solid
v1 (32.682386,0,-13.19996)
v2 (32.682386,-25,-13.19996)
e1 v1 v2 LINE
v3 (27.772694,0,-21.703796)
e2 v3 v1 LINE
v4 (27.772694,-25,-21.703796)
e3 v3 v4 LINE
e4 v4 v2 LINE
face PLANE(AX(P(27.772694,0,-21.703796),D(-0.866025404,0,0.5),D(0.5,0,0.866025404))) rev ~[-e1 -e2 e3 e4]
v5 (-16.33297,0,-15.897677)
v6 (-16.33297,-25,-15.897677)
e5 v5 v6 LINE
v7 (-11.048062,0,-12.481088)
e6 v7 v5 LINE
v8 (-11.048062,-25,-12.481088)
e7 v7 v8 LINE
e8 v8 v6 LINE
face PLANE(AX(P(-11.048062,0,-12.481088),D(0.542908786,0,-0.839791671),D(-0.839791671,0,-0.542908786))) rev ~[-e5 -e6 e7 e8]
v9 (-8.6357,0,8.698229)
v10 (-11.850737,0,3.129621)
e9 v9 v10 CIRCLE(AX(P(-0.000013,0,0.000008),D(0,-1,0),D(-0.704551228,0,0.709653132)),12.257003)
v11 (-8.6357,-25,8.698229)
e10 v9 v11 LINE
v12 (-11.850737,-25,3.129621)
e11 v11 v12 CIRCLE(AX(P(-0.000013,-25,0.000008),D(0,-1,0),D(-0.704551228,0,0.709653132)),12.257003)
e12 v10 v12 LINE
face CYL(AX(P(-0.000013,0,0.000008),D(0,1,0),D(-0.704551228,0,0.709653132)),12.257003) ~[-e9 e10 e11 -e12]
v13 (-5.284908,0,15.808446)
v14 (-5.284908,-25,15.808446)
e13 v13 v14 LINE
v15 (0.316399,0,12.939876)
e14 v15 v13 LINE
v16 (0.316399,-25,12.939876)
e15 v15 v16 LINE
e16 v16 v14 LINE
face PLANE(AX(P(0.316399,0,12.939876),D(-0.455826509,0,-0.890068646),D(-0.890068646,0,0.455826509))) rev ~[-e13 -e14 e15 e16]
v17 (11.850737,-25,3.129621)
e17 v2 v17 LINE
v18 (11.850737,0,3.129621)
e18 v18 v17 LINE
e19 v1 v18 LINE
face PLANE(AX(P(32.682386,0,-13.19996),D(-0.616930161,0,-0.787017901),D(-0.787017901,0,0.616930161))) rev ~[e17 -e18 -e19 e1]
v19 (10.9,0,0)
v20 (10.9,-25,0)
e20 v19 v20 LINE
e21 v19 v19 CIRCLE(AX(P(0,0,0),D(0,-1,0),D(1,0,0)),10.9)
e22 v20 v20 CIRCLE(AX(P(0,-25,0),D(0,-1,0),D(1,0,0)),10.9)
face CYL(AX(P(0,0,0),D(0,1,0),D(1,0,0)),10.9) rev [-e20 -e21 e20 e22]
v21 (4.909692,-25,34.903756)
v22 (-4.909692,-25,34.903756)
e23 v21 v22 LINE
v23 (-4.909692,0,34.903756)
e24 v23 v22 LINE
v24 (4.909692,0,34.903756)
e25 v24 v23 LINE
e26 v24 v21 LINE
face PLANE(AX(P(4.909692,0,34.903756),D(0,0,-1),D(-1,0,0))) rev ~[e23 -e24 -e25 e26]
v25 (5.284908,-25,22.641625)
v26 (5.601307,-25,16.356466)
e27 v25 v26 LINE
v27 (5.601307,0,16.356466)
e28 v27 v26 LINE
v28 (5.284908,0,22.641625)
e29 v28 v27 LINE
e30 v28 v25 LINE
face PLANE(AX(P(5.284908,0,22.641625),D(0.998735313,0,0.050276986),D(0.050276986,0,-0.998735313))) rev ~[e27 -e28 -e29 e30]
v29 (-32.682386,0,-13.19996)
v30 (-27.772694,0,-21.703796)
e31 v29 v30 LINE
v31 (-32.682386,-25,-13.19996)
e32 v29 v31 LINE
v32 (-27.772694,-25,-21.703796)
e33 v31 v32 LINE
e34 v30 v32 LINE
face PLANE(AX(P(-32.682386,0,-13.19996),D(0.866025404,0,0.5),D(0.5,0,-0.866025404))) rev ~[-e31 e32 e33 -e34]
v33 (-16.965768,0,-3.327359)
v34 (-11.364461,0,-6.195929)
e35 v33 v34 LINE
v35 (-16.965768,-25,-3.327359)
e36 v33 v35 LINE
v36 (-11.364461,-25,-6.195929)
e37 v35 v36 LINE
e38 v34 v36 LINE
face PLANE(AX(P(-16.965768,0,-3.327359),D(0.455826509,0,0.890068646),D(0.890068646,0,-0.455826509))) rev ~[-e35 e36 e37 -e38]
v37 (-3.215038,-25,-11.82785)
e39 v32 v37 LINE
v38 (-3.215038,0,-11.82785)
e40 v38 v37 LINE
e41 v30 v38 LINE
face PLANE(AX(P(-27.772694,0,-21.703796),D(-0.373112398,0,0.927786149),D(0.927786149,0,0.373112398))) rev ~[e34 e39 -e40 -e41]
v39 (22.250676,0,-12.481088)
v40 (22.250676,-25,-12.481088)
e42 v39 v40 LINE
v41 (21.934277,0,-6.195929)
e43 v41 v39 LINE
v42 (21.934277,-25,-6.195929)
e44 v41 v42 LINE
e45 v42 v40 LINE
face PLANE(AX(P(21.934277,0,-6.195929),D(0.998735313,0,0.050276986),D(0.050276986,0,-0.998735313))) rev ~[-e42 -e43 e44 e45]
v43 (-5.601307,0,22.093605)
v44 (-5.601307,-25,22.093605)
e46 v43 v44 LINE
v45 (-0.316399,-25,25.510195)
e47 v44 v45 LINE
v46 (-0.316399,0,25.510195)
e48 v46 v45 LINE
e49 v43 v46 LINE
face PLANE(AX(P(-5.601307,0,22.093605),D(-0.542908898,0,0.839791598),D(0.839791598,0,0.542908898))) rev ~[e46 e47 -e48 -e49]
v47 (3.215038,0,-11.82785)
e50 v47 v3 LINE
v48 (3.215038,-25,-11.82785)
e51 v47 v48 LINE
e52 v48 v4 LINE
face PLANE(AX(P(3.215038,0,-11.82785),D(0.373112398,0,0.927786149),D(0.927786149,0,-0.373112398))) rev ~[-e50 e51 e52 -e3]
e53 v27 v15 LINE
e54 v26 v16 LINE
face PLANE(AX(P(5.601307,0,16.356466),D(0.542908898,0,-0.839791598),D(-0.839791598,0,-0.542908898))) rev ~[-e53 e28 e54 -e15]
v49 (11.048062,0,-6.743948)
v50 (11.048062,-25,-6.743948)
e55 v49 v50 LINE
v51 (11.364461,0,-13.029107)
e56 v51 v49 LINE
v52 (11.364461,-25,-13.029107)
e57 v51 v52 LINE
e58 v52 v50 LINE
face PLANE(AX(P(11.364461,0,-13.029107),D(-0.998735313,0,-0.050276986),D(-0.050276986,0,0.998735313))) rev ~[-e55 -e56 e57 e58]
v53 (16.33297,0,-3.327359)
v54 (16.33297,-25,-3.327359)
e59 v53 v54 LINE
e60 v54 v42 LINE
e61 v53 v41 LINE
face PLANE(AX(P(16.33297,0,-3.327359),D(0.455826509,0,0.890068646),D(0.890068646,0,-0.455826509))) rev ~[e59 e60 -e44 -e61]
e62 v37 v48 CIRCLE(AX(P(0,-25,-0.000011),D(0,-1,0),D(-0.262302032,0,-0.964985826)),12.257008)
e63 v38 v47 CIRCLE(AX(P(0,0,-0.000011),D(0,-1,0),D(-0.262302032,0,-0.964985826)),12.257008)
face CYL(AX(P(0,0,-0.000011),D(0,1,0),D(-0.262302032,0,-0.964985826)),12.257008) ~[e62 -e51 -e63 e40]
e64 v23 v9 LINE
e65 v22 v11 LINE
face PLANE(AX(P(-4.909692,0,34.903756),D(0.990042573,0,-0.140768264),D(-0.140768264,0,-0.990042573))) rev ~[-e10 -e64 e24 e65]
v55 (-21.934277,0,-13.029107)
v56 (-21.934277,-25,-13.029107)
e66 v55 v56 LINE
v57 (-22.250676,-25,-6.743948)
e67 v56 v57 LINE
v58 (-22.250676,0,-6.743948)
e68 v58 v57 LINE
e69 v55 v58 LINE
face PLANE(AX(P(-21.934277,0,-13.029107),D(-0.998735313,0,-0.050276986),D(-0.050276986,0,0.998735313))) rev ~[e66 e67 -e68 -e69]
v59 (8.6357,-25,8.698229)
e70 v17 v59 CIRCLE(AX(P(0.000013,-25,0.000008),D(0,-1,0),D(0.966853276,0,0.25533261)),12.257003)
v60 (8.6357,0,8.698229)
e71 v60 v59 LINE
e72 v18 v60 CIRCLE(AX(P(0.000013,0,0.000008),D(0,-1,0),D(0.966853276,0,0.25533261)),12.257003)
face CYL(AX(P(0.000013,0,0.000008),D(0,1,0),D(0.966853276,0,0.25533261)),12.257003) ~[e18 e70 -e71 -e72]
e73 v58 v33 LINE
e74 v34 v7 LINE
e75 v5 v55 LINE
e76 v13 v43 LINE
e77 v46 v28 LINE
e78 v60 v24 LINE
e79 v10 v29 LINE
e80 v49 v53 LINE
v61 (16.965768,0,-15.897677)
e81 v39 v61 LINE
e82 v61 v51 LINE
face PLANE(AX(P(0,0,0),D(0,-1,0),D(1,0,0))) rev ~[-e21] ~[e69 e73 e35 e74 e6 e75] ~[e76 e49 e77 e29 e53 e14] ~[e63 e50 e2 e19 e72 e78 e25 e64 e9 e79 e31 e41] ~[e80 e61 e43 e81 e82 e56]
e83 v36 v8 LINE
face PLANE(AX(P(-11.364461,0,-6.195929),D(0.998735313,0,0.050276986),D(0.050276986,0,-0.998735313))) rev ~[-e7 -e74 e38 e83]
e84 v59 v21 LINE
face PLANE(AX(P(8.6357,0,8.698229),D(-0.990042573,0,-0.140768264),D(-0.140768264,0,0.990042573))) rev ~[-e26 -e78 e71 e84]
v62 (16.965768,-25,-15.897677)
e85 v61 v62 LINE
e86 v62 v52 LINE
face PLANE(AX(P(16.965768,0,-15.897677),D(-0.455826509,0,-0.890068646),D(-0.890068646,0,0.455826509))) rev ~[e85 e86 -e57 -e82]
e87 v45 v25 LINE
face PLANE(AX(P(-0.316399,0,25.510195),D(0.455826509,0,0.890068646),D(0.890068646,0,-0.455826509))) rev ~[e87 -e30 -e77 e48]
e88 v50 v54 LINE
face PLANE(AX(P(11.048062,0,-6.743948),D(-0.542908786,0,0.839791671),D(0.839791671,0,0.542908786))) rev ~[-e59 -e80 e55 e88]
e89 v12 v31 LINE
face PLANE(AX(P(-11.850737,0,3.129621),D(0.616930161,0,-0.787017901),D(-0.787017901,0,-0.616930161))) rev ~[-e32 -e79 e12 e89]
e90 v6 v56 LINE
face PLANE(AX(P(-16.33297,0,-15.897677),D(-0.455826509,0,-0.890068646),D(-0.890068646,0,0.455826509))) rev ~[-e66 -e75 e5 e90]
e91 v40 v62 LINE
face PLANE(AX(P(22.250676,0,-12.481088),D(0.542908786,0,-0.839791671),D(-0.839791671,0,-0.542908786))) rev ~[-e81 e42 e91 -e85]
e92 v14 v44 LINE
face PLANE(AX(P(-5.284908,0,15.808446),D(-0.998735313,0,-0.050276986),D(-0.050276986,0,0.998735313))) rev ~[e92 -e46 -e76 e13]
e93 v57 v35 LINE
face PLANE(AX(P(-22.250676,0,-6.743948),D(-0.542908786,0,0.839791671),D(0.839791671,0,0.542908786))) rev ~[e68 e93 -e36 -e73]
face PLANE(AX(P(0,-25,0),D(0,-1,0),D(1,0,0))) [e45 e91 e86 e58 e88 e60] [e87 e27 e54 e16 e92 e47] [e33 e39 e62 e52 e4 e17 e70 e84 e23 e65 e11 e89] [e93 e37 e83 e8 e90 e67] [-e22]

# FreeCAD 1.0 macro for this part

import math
import FreeCAD as App
import Part
import Sketcher
from FreeCAD import Vector
Q = App.Units.Quantity


def add_polygon(sketch, points):
    """Adds a closed chain of lines whose ends are joined by coincident constraints."""
    first, n = sketch.GeometryCount, len(points)
    for a, b in zip(points, points[1:] + points[:1]):
        sketch.addGeometry(Part.LineSegment(App.Vector(*a, 0), App.Vector(*b, 0)), False)
    for i in range(n):
        sketch.addConstraint(Sketcher.Constraint("Coincident", first + i, 2, first + (i + 1) % n, 1))

doc = App.newDocument("Part")
params = doc.addObject("Spreadsheet::Sheet", "Params")
for row, (alias, value) in enumerate([
    ("sketch1_diameter", "21.8 mm"),
    ("pad1_length", "25 mm"),
], start=1):
    params.set(f"A{row}", alias)
    params.set(f"B{row}", "=" + value)
    params.setAlias(f"B{row}", alias)

body = doc.addObject("PartDesign::Body", "Body")

# Sketch on XZ plane
sketch1 = doc.addObject("Sketcher::SketchObject", "Sketch")
body.addObject(sketch1)
sketch1.AttachmentSupport = (doc.XZ_Plane, [""])
sketch1.MapMode = "FlatFace"
sketch1.addGeometry(Part.LineSegment(Vector(-4.909692, 34.903756, 0), Vector(-8.6357, 8.698229, 0)), False)  # 0
sketch1.addGeometry(Part.ArcOfCircle(Part.Circle(Vector(-0.000013, 0.000008, 0), Vector(0, 0, 1), 12.257003), math.radians(134.7933), math.radians(165.206705)), False)  # 1
sketch1.addGeometry(Part.LineSegment(Vector(-11.850737, 3.129621, 0), Vector(-32.682386, -13.19996, 0)), False)  # 2
sketch1.addGeometry(Part.LineSegment(Vector(-32.682386, -13.19996, 0), Vector(-27.772694, -21.703796, 0)), False)  # 3
sketch1.addGeometry(Part.LineSegment(Vector(-27.772694, -21.703796, 0), Vector(-3.215038, -11.82785, 0)), False)  # 4
sketch1.addGeometry(Part.ArcOfCircle(Part.Circle(Vector(0, -0.000011, 0), Vector(0, 0, 1), 12.257008), math.radians(-105.206701), math.radians(-74.793299)), False)  # 5
sketch1.addGeometry(Part.LineSegment(Vector(3.215038, -11.82785, 0), Vector(27.772694, -21.703796, 0)), False)  # 6
sketch1.addGeometry(Part.LineSegment(Vector(27.772694, -21.703796, 0), Vector(32.682386, -13.19996, 0)), False)  # 7
sketch1.addGeometry(Part.LineSegment(Vector(32.682386, -13.19996, 0), Vector(11.850737, 3.129621, 0)), False)  # 8
sketch1.addGeometry(Part.ArcOfCircle(Part.Circle(Vector(0.000013, 0.000008, 0), Vector(0, 0, 1), 12.257003), math.radians(14.793295), math.radians(45.2067)), False)  # 9
sketch1.addGeometry(Part.LineSegment(Vector(8.6357, 8.698229, 0), Vector(4.909692, 34.903756, 0)), False)  # 10
sketch1.addGeometry(Part.LineSegment(Vector(4.909692, 34.903756, 0), Vector(-4.909692, 34.903756, 0)), False)  # 11
add_polygon(sketch1, [(-11.048062, -12.481088), (-16.33297, -15.897677), (-21.934277, -13.029107), (-22.250676, -6.743948), (-16.965768, -3.327359), (-11.364461, -6.195929)])  # lines 12-17
add_polygon(sketch1, [(16.33297, -3.327359), (21.934277, -6.195929), (22.250676, -12.481088), (16.965768, -15.897677), (11.364461, -13.029107), (11.048062, -6.743948)])  # lines 18-23
sketch1.addGeometry(Part.Circle(Vector(0, 0, 0), Vector(0, 0, 1), 10.9), False)  # 24
add_polygon(sketch1, [(5.284908, 22.641625), (5.601307, 16.356466), (0.316399, 12.939876), (-5.284908, 15.808446), (-5.601307, 22.093605), (-0.316399, 25.510195)])  # lines 25-30
sketch1.addConstraint([
    Sketcher.Constraint("Coincident", 0, 2, 1, 1),
    Sketcher.Constraint("Coincident", 1, 2, 2, 1),
    Sketcher.Constraint("Coincident", 2, 2, 3, 1),
    Sketcher.Constraint("Coincident", 3, 2, 4, 1),
    Sketcher.Constraint("Coincident", 4, 2, 5, 1),
    Sketcher.Constraint("Coincident", 5, 2, 6, 1),
    Sketcher.Constraint("Coincident", 6, 2, 7, 1),
    Sketcher.Constraint("Coincident", 7, 2, 8, 1),
    Sketcher.Constraint("Coincident", 8, 2, 9, 1),
    Sketcher.Constraint("Coincident", 9, 2, 10, 1),
    Sketcher.Constraint("Coincident", 10, 2, 11, 1),
    Sketcher.Constraint("Coincident", 11, 2, 0, 1),
    Sketcher.Constraint("Horizontal", 11),
    Sketcher.Constraint("Coincident", 24, 3, -1, 1),
    Sketcher.Constraint("Equal", 1, 9),
    Sketcher.Constraint("Symmetric", 1, 3, 9, 3, -2),
    Sketcher.Constraint("Symmetric", 4, 2, 5, 2, -2),
    Sketcher.Constraint("Symmetric", 3, 2, 6, 2, -2),
    Sketcher.Constraint("Symmetric", 2, 2, 7, 2, -2),
    Sketcher.Constraint("Parallel", 12, 15),
    Sketcher.Constraint("Parallel", 13, 16),
    Sketcher.Constraint("Parallel", 14, 17),
    Sketcher.Constraint("Parallel", 16, 18),
    Sketcher.Constraint("Parallel", 17, 19),
    Sketcher.Constraint("Parallel", 15, 20),
    Sketcher.Constraint("Parallel", 18, 21),
    Sketcher.Constraint("Parallel", 19, 22),
    Sketcher.Constraint("Parallel", 20, 23),
    Sketcher.Constraint("Parallel", 22, 25),
    Sketcher.Constraint("Parallel", 23, 26),
    Sketcher.Constraint("Parallel", 21, 27),
    Sketcher.Constraint("Parallel", 25, 28),
    Sketcher.Constraint("Parallel", 26, 29),
    Sketcher.Constraint("Parallel", 27, 30),
    Sketcher.Constraint("Horizontal", 1, 2, 8, 2),
    Sketcher.Constraint("Horizontal", 0, 2, 9, 2),
    Sketcher.Constraint("Horizontal", 16, 2, 18, 2),
    Sketcher.Constraint("Horizontal", 17, 2, 19, 2),
    Sketcher.Constraint("Horizontal", 12, 2, 20, 2),
    Sketcher.Constraint("Horizontal", 13, 2, 21, 2),
    Sketcher.Constraint("Horizontal", 14, 2, 22, 2),
    Sketcher.Constraint("Equal", 0, 2),
    Sketcher.Constraint("Equal", 2, 4),
    Sketcher.Constraint("Equal", 8, 10),
    Sketcher.Constraint("Equal", 12, 13),
    Sketcher.Constraint("Equal", 13, 14),
    Sketcher.Constraint("Equal", 14, 15),
    Sketcher.Constraint("Equal", 23, 25),
    Sketcher.Constraint("Equal", 25, 26),
    Sketcher.Constraint("Equal", 26, 27),
    Sketcher.Constraint("Equal", 27, 28),
    Sketcher.Constraint("Diameter", 24, Q("21.8 mm")),
    Sketcher.Constraint("Angle", 3, Q("-60 deg")),
    Sketcher.Constraint("Radius", 1, Q("12.257003 mm")),
    Sketcher.Constraint("Radius", 5, Q("12.257008 mm")),
    Sketcher.Constraint("DistanceX", 0, 2, -1, 1, Q("8.6357 mm")),
    Sketcher.Constraint("DistanceX", -1, 1, 26, 2, Q("0.316399 mm")),
    Sketcher.Constraint("DistanceX", 29, 2, -1, 1, Q("0.316399 mm")),
    Sketcher.Constraint("DistanceX", 1, 2, 4, 2, Q("8.635699 mm")),
    Sketcher.Constraint("DistanceY", 12, 2, 1, 2, Q("19.027298 mm")),
    Sketcher.Constraint("DistanceX", 14, 2, 13, 2, Q("0.316399 mm")),
    Sketcher.Constraint("DistanceX", 4, 2, 21, 2, Q("14.579499 mm")),
    Sketcher.Constraint("Distance", 0, Q("26.469091 mm")),
    Sketcher.Constraint("Distance", 26, Q("6.293118 mm")),
    Sketcher.Constraint("DistanceX", 11, 2, 11, 1, Q("9.819384 mm")),
    Sketcher.Constraint("DistanceY", -1, 1, 0, 2, Q("8.698229 mm")),
    Sketcher.Constraint("DistanceY", -1, 1, 1, 2, Q("3.129621 mm")),
    Sketcher.Constraint("DistanceY", 2, 2, -1, 1, Q("13.19996 mm")),
    Sketcher.Constraint("DistanceY", 4, 2, -1, 1, Q("11.82785 mm")),
    Sketcher.Constraint("DistanceX", -1, 1, 5, 2, Q("3.215038 mm")),
    Sketcher.Constraint("DistanceX", 12, 2, -1, 1, Q("16.33297 mm")),
    Sketcher.Constraint("DistanceY", 15, 2, -1, 1, Q("3.327359 mm")),
    Sketcher.Constraint("DistanceY", 28, 2, 11, 2, Q("12.810151 mm")),
])
sketch1.setExpression("Constraints[69]", "Params.sketch1_diameter")
pad1 = doc.addObject("PartDesign::Pad", "Pad")
body.addObject(pad1)
pad1.Profile = sketch1
pad1.setExpression("Length", "Params.pad1_length")

doc.recompute()
